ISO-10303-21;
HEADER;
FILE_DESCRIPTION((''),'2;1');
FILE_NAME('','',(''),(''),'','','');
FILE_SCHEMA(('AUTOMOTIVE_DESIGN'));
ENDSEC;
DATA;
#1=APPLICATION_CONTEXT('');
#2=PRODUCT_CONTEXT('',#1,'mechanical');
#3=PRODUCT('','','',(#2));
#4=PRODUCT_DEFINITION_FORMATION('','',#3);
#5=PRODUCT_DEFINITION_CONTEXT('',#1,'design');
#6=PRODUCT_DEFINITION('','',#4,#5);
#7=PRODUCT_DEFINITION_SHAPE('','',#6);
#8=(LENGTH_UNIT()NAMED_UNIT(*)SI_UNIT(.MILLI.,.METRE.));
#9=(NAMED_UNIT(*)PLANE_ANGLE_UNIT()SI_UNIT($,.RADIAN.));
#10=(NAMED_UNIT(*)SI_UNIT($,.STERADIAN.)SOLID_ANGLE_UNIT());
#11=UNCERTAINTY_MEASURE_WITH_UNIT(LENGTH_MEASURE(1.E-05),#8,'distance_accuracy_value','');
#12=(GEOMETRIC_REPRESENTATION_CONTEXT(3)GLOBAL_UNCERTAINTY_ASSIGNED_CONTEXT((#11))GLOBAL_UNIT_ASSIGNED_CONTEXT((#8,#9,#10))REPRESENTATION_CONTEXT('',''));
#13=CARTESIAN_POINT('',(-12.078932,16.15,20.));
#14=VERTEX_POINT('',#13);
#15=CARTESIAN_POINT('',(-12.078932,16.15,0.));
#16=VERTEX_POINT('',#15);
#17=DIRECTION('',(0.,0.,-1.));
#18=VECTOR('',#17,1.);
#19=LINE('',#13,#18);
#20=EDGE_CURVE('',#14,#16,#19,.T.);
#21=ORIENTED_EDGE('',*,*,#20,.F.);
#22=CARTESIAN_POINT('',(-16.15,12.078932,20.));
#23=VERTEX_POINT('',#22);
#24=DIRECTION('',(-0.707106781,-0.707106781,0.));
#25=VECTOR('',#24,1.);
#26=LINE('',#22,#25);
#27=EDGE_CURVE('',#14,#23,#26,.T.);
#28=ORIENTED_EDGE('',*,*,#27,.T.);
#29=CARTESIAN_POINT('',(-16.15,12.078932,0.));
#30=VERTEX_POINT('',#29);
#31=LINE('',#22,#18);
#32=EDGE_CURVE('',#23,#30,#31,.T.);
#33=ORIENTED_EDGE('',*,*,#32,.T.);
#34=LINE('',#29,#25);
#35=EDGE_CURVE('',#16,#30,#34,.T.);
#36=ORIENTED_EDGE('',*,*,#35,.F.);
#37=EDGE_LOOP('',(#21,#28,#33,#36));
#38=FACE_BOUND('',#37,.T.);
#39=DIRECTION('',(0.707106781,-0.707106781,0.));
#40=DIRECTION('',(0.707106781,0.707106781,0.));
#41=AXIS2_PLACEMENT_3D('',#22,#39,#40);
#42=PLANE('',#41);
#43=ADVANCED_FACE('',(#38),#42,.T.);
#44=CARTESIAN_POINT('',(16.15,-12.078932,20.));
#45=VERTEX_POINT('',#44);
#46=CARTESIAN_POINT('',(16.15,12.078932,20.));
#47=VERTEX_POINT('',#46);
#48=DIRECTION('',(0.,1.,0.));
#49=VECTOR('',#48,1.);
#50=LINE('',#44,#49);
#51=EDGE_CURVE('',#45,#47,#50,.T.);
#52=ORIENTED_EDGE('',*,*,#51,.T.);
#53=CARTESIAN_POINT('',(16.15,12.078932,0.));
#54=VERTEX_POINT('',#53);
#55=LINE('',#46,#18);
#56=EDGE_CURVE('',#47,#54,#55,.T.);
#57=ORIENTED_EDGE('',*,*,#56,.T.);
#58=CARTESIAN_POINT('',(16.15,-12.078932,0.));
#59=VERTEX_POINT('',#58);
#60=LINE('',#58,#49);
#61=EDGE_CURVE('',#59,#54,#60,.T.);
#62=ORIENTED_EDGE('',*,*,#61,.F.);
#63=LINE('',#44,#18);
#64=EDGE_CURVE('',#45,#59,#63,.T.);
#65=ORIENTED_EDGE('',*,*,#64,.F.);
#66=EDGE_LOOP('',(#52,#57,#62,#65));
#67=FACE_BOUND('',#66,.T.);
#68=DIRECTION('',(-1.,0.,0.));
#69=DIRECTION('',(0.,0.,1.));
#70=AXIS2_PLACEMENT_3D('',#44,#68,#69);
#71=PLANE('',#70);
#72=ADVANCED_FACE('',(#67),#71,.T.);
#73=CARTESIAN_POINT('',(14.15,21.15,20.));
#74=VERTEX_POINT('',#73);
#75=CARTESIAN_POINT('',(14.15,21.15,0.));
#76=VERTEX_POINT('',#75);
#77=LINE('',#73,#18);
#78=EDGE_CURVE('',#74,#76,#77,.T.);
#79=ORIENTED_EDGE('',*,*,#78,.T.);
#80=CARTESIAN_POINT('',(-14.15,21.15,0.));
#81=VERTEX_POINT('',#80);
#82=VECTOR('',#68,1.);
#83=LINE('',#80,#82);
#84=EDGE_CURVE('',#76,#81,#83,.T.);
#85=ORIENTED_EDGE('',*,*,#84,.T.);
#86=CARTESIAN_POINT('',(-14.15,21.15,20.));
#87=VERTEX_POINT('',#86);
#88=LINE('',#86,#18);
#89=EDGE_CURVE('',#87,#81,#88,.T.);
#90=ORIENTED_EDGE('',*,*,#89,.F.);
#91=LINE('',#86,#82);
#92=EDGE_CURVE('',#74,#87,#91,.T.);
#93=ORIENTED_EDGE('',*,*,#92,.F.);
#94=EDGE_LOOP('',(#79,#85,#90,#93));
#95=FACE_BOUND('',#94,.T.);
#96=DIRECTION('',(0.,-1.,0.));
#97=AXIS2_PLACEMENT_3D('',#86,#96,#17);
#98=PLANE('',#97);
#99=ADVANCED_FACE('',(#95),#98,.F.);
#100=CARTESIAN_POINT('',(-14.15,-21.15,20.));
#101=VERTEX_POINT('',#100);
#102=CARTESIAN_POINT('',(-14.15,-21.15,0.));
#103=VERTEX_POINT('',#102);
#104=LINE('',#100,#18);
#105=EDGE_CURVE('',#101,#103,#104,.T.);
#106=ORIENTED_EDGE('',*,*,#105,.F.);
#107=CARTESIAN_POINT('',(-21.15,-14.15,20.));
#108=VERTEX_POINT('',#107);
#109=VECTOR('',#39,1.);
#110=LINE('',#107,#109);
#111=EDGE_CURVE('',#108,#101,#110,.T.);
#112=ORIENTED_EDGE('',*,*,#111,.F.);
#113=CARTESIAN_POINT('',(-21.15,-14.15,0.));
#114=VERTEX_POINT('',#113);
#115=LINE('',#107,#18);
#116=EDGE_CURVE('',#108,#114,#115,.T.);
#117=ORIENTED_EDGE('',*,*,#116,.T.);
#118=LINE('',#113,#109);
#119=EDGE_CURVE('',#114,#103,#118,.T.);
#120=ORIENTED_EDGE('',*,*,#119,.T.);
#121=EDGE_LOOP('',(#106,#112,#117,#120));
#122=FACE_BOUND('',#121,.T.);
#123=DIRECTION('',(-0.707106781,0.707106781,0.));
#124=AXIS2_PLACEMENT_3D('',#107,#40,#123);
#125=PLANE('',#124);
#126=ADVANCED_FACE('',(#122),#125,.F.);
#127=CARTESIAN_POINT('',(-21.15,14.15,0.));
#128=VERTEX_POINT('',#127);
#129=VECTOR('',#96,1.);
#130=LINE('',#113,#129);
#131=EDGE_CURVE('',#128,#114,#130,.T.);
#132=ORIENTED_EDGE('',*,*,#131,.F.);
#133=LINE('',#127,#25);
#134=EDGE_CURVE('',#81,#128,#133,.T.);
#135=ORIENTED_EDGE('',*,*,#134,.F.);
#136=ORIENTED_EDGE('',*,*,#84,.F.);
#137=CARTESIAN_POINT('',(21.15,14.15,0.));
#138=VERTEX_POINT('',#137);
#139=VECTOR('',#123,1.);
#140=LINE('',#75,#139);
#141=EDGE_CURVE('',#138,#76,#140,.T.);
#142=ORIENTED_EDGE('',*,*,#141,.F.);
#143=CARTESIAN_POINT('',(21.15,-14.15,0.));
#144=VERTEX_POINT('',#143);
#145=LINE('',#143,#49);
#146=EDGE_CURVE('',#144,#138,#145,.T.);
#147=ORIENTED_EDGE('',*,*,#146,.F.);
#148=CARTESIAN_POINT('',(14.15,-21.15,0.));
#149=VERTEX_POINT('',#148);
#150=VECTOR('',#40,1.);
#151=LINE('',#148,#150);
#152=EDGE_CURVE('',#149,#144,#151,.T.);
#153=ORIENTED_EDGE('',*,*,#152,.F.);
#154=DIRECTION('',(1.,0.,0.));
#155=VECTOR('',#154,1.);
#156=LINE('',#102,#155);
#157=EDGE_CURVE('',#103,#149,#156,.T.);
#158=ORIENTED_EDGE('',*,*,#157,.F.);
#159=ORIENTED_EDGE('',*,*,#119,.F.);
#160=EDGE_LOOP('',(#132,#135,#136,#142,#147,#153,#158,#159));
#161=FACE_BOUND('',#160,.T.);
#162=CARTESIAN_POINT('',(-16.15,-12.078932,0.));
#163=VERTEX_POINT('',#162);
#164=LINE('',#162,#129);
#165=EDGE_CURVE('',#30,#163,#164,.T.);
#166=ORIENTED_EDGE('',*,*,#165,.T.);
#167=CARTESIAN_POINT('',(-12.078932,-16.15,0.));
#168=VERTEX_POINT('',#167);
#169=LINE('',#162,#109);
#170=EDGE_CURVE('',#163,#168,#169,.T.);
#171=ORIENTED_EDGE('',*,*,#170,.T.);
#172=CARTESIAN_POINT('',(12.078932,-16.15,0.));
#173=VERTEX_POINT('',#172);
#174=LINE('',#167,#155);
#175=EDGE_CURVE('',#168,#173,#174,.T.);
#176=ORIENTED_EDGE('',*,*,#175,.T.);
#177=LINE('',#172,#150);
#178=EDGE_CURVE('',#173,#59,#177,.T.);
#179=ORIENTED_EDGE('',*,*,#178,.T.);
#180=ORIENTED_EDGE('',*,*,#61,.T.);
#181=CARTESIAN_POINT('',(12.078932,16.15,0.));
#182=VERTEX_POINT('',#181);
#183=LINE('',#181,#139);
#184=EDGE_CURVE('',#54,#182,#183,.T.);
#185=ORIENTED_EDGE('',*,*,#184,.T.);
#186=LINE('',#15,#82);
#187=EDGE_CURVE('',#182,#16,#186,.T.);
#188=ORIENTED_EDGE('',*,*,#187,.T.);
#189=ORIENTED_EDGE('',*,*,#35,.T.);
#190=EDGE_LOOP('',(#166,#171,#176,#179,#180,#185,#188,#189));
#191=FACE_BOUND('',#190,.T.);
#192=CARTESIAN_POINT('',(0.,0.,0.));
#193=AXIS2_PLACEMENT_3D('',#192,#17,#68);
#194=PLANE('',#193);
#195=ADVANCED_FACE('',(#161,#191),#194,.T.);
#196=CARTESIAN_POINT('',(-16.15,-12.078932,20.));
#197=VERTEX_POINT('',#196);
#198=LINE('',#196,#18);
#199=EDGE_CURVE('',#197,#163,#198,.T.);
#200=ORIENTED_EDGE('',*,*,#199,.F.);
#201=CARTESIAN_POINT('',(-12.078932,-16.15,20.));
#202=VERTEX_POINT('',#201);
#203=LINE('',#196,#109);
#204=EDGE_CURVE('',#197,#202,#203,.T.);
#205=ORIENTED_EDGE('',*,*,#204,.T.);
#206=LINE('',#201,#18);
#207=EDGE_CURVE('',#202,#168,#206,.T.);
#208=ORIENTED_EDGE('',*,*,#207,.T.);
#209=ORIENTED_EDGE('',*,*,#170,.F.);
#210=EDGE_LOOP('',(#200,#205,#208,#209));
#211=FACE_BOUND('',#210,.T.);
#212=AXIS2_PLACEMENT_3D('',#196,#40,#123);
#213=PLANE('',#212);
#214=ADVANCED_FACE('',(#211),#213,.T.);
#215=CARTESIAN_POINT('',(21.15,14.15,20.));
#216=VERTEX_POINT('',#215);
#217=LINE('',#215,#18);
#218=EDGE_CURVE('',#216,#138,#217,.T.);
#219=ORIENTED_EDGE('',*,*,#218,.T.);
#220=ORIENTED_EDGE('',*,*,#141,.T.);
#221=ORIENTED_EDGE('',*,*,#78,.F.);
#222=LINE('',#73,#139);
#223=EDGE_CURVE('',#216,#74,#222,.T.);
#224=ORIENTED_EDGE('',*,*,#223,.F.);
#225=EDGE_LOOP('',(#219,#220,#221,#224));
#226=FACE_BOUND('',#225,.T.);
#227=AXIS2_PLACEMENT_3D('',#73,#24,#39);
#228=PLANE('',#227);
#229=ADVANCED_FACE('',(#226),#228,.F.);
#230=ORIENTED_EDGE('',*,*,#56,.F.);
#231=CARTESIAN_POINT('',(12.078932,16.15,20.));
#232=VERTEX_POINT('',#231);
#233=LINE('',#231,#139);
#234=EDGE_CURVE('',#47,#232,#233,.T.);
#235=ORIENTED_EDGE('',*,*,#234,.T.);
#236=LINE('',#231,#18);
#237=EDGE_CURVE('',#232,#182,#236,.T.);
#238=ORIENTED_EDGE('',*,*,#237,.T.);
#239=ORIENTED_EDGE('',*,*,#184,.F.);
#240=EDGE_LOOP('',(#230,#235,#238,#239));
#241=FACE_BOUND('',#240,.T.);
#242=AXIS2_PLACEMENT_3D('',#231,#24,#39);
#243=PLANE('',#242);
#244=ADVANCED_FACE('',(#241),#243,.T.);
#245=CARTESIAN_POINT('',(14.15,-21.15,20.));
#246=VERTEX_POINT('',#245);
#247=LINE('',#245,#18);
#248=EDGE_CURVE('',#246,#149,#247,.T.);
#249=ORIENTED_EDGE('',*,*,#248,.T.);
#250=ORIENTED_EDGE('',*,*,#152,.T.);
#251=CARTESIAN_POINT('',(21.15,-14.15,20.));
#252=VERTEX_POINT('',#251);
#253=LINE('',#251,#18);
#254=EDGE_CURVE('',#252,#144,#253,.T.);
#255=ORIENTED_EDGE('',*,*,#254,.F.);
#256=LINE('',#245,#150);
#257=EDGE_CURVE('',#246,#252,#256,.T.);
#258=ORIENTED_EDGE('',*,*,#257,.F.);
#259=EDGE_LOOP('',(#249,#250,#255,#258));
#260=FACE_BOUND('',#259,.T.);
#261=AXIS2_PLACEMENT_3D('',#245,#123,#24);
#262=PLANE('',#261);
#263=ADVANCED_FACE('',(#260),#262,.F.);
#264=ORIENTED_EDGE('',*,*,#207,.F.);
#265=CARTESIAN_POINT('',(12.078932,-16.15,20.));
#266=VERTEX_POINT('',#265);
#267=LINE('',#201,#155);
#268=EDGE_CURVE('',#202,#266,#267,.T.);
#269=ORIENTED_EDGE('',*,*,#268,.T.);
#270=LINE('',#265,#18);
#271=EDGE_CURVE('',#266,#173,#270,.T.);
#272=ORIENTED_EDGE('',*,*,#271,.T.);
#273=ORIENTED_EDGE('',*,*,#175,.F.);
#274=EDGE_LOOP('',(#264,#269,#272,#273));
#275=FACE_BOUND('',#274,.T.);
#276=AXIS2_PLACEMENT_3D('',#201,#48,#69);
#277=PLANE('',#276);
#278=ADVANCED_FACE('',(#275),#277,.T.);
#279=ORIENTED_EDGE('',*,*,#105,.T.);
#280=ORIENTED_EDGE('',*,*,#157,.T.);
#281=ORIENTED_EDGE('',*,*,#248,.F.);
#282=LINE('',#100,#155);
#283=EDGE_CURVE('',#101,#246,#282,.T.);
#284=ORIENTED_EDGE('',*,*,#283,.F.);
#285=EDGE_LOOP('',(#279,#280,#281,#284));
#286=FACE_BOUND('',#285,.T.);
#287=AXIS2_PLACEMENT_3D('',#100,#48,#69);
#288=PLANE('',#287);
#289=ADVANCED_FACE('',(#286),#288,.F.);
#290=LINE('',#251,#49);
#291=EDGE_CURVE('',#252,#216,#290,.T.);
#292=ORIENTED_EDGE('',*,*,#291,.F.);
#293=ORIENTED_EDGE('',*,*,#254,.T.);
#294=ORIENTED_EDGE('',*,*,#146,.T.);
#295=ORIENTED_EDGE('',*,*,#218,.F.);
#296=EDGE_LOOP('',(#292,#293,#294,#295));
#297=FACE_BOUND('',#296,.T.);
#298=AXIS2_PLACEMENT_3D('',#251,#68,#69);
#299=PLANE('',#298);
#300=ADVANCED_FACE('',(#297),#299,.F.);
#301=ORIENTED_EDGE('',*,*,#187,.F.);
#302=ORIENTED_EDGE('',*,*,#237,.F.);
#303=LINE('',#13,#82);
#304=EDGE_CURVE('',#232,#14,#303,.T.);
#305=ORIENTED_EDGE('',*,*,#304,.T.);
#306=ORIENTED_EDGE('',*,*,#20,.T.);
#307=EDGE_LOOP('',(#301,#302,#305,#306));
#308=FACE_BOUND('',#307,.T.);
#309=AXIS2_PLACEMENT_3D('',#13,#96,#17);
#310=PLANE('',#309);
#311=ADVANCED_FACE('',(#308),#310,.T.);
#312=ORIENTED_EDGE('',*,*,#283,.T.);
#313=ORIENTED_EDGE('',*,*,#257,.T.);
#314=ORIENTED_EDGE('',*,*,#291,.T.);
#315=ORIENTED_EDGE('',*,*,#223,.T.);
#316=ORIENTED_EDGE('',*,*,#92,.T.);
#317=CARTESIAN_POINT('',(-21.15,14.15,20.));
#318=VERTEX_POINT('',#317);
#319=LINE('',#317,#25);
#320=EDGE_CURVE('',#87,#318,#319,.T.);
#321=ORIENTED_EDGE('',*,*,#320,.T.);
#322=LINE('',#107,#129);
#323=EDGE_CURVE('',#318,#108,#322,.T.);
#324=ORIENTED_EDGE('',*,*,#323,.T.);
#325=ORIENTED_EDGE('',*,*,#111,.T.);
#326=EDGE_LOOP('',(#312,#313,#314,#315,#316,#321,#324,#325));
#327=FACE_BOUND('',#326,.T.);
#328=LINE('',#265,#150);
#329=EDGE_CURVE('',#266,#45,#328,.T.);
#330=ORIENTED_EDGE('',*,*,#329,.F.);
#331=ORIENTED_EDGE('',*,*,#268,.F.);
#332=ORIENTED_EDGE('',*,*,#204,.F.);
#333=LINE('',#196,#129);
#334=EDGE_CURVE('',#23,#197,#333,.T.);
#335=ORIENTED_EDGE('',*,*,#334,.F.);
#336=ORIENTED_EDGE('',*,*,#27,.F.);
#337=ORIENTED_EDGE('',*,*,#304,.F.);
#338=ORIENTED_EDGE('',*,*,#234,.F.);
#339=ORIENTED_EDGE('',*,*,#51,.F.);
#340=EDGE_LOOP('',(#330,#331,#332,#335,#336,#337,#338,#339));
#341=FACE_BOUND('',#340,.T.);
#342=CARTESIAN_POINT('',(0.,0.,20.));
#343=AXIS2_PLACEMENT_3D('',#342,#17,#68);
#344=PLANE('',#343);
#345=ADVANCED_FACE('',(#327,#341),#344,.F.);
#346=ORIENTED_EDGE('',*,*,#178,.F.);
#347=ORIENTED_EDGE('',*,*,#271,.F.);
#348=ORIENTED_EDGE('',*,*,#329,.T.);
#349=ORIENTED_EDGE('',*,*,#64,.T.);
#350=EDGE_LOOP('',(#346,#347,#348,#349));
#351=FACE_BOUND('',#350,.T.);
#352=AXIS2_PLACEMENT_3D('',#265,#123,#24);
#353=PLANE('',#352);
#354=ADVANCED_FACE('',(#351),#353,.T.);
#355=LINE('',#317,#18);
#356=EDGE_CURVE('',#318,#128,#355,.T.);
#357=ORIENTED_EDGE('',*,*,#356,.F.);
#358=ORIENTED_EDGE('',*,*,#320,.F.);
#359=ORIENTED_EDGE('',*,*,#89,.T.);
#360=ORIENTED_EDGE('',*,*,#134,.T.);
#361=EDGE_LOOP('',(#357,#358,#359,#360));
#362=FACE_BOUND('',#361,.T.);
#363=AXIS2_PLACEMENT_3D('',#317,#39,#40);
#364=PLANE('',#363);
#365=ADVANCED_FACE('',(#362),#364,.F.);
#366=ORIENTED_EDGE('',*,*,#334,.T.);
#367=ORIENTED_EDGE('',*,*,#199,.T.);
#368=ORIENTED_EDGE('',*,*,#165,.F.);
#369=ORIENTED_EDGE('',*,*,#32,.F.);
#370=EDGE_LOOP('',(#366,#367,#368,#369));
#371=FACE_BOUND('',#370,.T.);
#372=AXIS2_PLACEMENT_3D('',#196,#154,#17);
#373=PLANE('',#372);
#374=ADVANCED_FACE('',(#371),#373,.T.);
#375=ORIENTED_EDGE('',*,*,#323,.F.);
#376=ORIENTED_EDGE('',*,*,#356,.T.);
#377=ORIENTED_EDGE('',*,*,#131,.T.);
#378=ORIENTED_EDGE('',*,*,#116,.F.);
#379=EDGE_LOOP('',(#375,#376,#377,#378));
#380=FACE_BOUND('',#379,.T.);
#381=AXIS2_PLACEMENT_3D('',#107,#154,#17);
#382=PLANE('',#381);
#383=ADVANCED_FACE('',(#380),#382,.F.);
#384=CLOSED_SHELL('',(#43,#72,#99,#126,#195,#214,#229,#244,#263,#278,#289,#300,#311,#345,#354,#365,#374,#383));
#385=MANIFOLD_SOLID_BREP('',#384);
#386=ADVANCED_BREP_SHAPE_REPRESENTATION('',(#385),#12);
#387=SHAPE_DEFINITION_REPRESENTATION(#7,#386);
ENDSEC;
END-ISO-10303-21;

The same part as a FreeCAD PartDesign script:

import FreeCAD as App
import Part
import Sketcher
from FreeCAD import Vector

doc = App.newDocument("Part")
params = doc.addObject("Spreadsheet::Sheet", "Params")
for row, (alias, value) in enumerate([
    ("sketch1_width", "28.3 mm"),
    ("pad1_length", "20 mm"),
], start=1):
    params.set(f"A{row}", alias)
    params.set(f"B{row}", "=" + value)
    params.setAlias(f"B{row}", alias)

body = doc.addObject("PartDesign::Body", "Body")

sketch1 = body.newObject("Sketcher::SketchObject", "Sketch")
sketch1.AttachmentSupport = (doc.getObject("XY_Plane"), [""])
sketch1.MapMode = "FlatFace"
sketch1.addGeometry(Part.LineSegment(Vector(-14.15, 21.15, 0), Vector(-21.15, 14.15, 0)), False)
sketch1.addGeometry(Part.LineSegment(Vector(-21.15, 14.15, 0), Vector(-21.15, -14.15, 0)), False)
sketch1.addGeometry(Part.LineSegment(Vector(-21.15, -14.15, 0), Vector(-14.15, -21.15, 0)), False)
sketch1.addGeometry(Part.LineSegment(Vector(-14.15, -21.15, 0), Vector(14.15, -21.15, 0)), False)
sketch1.addGeometry(Part.LineSegment(Vector(14.15, -21.15, 0), Vector(21.15, -14.15, 0)), False)
sketch1.addGeometry(Part.LineSegment(Vector(21.15, -14.15, 0), Vector(21.15, 14.15, 0)), False)
sketch1.addGeometry(Part.LineSegment(Vector(21.15, 14.15, 0), Vector(14.15, 21.15, 0)), False)
sketch1.addGeometry(Part.LineSegment(Vector(14.15, 21.15, 0), Vector(-14.15, 21.15, 0)), False)
sketch1.addGeometry(Part.LineSegment(Vector(-12.078932, 16.15, 0), Vector(12.078932, 16.15, 0)), False)
sketch1.addGeometry(Part.LineSegment(Vector(12.078932, 16.15, 0), Vector(16.15, 12.078932, 0)), False)
sketch1.addGeometry(Part.LineSegment(Vector(16.15, 12.078932, 0), Vector(16.15, -12.078932, 0)), False)
sketch1.addGeometry(Part.LineSegment(Vector(16.15, -12.078932, 0), Vector(12.078932, -16.15, 0)), False)
sketch1.addGeometry(Part.LineSegment(Vector(12.078932, -16.15, 0), Vector(-12.078932, -16.15, 0)), False)
sketch1.addGeometry(Part.LineSegment(Vector(-12.078932, -16.15, 0), Vector(-16.15, -12.078932, 0)), False)
sketch1.addGeometry(Part.LineSegment(Vector(-16.15, -12.078932, 0), Vector(-16.15, 12.078932, 0)), False)
sketch1.addGeometry(Part.LineSegment(Vector(-16.15, 12.078932, 0), Vector(-12.078932, 16.15, 0)), False)
sketch1.addConstraint(Sketcher.Constraint("Coincident", 0, 2, 1, 1))
sketch1.addConstraint(Sketcher.Constraint("Coincident", 1, 2, 2, 1))
sketch1.addConstraint(Sketcher.Constraint("Coincident", 2, 2, 3, 1))
sketch1.addConstraint(Sketcher.Constraint("Coincident", 3, 2, 4, 1))
sketch1.addConstraint(Sketcher.Constraint("Coincident", 4, 2, 5, 1))
sketch1.addConstraint(Sketcher.Constraint("Coincident", 5, 2, 6, 1))
sketch1.addConstraint(Sketcher.Constraint("Coincident", 6, 2, 7, 1))
sketch1.addConstraint(Sketcher.Constraint("Coincident", 7, 2, 0, 1))
sketch1.addConstraint(Sketcher.Constraint("Coincident", 8, 2, 9, 1))
sketch1.addConstraint(Sketcher.Constraint("Coincident", 9, 2, 10, 1))
sketch1.addConstraint(Sketcher.Constraint("Coincident", 10, 2, 11, 1))
sketch1.addConstraint(Sketcher.Constraint("Coincident", 11, 2, 12, 1))
sketch1.addConstraint(Sketcher.Constraint("Coincident", 12, 2, 13, 1))
sketch1.addConstraint(Sketcher.Constraint("Coincident", 13, 2, 14, 1))
sketch1.addConstraint(Sketcher.Constraint("Coincident", 14, 2, 15, 1))
sketch1.addConstraint(Sketcher.Constraint("Coincident", 15, 2, 8, 1))
sketch1.addConstraint(Sketcher.Constraint("Vertical", 1))
sketch1.addConstraint(Sketcher.Constraint("Horizontal", 3))
sketch1.addConstraint(Sketcher.Constraint("Vertical", 5))
sketch1.addConstraint(Sketcher.Constraint("Horizontal", 7))
sketch1.addConstraint(Sketcher.Constraint("Horizontal", 8))
sketch1.addConstraint(Sketcher.Constraint("Vertical", 10))
sketch1.addConstraint(Sketcher.Constraint("Horizontal", 12))
sketch1.addConstraint(Sketcher.Constraint("Vertical", 14))
sketch1.addConstraint(Sketcher.Constraint("Symmetric", 0, 2, 4, 2, -1, 1))
sketch1.addConstraint(Sketcher.Constraint("Symmetric", 2, 2, 6, 2, -1, 1))
sketch1.addConstraint(Sketcher.Constraint("Symmetric", 8, 2, 12, 2, -1, 1))
sketch1.addConstraint(Sketcher.Constraint("Symmetric", 9, 2, 13, 2, -1, 1))
sketch1.addConstraint(Sketcher.Constraint("Perpendicular", 0, 2))
sketch1.addConstraint(Sketcher.Constraint("Perpendicular", 2, 4))
sketch1.addConstraint(Sketcher.Constraint("Perpendicular", 4, 6))
sketch1.addConstraint(Sketcher.Constraint("Parallel", 6, 9))
sketch1.addConstraint(Sketcher.Constraint("Perpendicular", 9, 11))
sketch1.addConstraint(Sketcher.Constraint("Perpendicular", 13, 15))
sketch1.addConstraint(Sketcher.Constraint("Horizontal", 1, 2, 4, 2))
sketch1.addConstraint(Sketcher.Constraint("Horizontal", 10, 2, 13, 2))
sketch1.addConstraint(Sketcher.Constraint("Horizontal", 9, 2, 14, 2))
sketch1.addConstraint(Sketcher.Constraint("Vertical", 3, 2, 6, 2))
sketch1.addConstraint(Sketcher.Constraint("Equal", 7, 1))
sketch1.addConstraint(Sketcher.Constraint("Equal", 12, 10))
sketch1.addConstraint(Sketcher.Constraint("DistanceX", 3, 1, 3, 2, 28.3))
sketch1.addConstraint(Sketcher.Constraint("DistanceX", 1, 2, 2, 2, 7.0))
sketch1.addConstraint(Sketcher.Constraint("DistanceY", 8, 2, 6, 2, 5.0))
sketch1.addConstraint(Sketcher.Constraint("Distance", 9, 5.757359))
sketch1.setExpression("Constraints[40]", "Params.sketch1_width")
pad1 = body.newObject("PartDesign::Pad", "Pad")
pad1.Profile = sketch1
pad1.setExpression("Length", "Params.pad1_length")

doc.recompute()
